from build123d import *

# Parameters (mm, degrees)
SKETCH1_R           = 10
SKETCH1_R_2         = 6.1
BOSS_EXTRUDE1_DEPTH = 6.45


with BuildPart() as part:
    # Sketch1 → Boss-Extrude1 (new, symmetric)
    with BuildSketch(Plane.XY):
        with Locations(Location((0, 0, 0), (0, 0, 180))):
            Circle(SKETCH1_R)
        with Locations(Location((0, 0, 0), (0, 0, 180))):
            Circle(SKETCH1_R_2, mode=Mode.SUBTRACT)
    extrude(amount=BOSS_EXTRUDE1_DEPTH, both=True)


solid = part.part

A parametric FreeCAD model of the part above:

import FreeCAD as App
import Part
import Sketcher
Q = App.Units.Quantity

doc = App.newDocument("Part")
body = doc.addObject("PartDesign::Body", "Body")

sketch1 = body.newObject("Sketcher::SketchObject", "Sketch")
sketch1.AttachmentSupport = (doc.getObject("XY_Plane"), [""])
sketch1.MapMode = "FlatFace"
sketch1.addGeometry(Part.Circle(App.Vector(0, 0, 0), App.Vector(0, 0, 1), 10), False)
sketch1.addGeometry(Part.Circle(App.Vector(0, 0, 0), App.Vector(0, 0, 1), 6), False)
sketch1.addConstraint(Sketcher.Constraint("Coincident", 0, 3, -1, 1))
sketch1.addConstraint(Sketcher.Constraint("Coincident", 1, 3, -1, 1))
sketch1.addConstraint(Sketcher.Constraint("Diameter", 0, Q("20 mm")))
sketch1.addConstraint(Sketcher.Constraint("Diameter", 1, Q("12.2 mm")))
pad1 = body.newObject("PartDesign::Pad", "Pad")
pad1.Profile = sketch1
pad1.Length = 12.9
pad1.Midplane = True

doc.recompute()
